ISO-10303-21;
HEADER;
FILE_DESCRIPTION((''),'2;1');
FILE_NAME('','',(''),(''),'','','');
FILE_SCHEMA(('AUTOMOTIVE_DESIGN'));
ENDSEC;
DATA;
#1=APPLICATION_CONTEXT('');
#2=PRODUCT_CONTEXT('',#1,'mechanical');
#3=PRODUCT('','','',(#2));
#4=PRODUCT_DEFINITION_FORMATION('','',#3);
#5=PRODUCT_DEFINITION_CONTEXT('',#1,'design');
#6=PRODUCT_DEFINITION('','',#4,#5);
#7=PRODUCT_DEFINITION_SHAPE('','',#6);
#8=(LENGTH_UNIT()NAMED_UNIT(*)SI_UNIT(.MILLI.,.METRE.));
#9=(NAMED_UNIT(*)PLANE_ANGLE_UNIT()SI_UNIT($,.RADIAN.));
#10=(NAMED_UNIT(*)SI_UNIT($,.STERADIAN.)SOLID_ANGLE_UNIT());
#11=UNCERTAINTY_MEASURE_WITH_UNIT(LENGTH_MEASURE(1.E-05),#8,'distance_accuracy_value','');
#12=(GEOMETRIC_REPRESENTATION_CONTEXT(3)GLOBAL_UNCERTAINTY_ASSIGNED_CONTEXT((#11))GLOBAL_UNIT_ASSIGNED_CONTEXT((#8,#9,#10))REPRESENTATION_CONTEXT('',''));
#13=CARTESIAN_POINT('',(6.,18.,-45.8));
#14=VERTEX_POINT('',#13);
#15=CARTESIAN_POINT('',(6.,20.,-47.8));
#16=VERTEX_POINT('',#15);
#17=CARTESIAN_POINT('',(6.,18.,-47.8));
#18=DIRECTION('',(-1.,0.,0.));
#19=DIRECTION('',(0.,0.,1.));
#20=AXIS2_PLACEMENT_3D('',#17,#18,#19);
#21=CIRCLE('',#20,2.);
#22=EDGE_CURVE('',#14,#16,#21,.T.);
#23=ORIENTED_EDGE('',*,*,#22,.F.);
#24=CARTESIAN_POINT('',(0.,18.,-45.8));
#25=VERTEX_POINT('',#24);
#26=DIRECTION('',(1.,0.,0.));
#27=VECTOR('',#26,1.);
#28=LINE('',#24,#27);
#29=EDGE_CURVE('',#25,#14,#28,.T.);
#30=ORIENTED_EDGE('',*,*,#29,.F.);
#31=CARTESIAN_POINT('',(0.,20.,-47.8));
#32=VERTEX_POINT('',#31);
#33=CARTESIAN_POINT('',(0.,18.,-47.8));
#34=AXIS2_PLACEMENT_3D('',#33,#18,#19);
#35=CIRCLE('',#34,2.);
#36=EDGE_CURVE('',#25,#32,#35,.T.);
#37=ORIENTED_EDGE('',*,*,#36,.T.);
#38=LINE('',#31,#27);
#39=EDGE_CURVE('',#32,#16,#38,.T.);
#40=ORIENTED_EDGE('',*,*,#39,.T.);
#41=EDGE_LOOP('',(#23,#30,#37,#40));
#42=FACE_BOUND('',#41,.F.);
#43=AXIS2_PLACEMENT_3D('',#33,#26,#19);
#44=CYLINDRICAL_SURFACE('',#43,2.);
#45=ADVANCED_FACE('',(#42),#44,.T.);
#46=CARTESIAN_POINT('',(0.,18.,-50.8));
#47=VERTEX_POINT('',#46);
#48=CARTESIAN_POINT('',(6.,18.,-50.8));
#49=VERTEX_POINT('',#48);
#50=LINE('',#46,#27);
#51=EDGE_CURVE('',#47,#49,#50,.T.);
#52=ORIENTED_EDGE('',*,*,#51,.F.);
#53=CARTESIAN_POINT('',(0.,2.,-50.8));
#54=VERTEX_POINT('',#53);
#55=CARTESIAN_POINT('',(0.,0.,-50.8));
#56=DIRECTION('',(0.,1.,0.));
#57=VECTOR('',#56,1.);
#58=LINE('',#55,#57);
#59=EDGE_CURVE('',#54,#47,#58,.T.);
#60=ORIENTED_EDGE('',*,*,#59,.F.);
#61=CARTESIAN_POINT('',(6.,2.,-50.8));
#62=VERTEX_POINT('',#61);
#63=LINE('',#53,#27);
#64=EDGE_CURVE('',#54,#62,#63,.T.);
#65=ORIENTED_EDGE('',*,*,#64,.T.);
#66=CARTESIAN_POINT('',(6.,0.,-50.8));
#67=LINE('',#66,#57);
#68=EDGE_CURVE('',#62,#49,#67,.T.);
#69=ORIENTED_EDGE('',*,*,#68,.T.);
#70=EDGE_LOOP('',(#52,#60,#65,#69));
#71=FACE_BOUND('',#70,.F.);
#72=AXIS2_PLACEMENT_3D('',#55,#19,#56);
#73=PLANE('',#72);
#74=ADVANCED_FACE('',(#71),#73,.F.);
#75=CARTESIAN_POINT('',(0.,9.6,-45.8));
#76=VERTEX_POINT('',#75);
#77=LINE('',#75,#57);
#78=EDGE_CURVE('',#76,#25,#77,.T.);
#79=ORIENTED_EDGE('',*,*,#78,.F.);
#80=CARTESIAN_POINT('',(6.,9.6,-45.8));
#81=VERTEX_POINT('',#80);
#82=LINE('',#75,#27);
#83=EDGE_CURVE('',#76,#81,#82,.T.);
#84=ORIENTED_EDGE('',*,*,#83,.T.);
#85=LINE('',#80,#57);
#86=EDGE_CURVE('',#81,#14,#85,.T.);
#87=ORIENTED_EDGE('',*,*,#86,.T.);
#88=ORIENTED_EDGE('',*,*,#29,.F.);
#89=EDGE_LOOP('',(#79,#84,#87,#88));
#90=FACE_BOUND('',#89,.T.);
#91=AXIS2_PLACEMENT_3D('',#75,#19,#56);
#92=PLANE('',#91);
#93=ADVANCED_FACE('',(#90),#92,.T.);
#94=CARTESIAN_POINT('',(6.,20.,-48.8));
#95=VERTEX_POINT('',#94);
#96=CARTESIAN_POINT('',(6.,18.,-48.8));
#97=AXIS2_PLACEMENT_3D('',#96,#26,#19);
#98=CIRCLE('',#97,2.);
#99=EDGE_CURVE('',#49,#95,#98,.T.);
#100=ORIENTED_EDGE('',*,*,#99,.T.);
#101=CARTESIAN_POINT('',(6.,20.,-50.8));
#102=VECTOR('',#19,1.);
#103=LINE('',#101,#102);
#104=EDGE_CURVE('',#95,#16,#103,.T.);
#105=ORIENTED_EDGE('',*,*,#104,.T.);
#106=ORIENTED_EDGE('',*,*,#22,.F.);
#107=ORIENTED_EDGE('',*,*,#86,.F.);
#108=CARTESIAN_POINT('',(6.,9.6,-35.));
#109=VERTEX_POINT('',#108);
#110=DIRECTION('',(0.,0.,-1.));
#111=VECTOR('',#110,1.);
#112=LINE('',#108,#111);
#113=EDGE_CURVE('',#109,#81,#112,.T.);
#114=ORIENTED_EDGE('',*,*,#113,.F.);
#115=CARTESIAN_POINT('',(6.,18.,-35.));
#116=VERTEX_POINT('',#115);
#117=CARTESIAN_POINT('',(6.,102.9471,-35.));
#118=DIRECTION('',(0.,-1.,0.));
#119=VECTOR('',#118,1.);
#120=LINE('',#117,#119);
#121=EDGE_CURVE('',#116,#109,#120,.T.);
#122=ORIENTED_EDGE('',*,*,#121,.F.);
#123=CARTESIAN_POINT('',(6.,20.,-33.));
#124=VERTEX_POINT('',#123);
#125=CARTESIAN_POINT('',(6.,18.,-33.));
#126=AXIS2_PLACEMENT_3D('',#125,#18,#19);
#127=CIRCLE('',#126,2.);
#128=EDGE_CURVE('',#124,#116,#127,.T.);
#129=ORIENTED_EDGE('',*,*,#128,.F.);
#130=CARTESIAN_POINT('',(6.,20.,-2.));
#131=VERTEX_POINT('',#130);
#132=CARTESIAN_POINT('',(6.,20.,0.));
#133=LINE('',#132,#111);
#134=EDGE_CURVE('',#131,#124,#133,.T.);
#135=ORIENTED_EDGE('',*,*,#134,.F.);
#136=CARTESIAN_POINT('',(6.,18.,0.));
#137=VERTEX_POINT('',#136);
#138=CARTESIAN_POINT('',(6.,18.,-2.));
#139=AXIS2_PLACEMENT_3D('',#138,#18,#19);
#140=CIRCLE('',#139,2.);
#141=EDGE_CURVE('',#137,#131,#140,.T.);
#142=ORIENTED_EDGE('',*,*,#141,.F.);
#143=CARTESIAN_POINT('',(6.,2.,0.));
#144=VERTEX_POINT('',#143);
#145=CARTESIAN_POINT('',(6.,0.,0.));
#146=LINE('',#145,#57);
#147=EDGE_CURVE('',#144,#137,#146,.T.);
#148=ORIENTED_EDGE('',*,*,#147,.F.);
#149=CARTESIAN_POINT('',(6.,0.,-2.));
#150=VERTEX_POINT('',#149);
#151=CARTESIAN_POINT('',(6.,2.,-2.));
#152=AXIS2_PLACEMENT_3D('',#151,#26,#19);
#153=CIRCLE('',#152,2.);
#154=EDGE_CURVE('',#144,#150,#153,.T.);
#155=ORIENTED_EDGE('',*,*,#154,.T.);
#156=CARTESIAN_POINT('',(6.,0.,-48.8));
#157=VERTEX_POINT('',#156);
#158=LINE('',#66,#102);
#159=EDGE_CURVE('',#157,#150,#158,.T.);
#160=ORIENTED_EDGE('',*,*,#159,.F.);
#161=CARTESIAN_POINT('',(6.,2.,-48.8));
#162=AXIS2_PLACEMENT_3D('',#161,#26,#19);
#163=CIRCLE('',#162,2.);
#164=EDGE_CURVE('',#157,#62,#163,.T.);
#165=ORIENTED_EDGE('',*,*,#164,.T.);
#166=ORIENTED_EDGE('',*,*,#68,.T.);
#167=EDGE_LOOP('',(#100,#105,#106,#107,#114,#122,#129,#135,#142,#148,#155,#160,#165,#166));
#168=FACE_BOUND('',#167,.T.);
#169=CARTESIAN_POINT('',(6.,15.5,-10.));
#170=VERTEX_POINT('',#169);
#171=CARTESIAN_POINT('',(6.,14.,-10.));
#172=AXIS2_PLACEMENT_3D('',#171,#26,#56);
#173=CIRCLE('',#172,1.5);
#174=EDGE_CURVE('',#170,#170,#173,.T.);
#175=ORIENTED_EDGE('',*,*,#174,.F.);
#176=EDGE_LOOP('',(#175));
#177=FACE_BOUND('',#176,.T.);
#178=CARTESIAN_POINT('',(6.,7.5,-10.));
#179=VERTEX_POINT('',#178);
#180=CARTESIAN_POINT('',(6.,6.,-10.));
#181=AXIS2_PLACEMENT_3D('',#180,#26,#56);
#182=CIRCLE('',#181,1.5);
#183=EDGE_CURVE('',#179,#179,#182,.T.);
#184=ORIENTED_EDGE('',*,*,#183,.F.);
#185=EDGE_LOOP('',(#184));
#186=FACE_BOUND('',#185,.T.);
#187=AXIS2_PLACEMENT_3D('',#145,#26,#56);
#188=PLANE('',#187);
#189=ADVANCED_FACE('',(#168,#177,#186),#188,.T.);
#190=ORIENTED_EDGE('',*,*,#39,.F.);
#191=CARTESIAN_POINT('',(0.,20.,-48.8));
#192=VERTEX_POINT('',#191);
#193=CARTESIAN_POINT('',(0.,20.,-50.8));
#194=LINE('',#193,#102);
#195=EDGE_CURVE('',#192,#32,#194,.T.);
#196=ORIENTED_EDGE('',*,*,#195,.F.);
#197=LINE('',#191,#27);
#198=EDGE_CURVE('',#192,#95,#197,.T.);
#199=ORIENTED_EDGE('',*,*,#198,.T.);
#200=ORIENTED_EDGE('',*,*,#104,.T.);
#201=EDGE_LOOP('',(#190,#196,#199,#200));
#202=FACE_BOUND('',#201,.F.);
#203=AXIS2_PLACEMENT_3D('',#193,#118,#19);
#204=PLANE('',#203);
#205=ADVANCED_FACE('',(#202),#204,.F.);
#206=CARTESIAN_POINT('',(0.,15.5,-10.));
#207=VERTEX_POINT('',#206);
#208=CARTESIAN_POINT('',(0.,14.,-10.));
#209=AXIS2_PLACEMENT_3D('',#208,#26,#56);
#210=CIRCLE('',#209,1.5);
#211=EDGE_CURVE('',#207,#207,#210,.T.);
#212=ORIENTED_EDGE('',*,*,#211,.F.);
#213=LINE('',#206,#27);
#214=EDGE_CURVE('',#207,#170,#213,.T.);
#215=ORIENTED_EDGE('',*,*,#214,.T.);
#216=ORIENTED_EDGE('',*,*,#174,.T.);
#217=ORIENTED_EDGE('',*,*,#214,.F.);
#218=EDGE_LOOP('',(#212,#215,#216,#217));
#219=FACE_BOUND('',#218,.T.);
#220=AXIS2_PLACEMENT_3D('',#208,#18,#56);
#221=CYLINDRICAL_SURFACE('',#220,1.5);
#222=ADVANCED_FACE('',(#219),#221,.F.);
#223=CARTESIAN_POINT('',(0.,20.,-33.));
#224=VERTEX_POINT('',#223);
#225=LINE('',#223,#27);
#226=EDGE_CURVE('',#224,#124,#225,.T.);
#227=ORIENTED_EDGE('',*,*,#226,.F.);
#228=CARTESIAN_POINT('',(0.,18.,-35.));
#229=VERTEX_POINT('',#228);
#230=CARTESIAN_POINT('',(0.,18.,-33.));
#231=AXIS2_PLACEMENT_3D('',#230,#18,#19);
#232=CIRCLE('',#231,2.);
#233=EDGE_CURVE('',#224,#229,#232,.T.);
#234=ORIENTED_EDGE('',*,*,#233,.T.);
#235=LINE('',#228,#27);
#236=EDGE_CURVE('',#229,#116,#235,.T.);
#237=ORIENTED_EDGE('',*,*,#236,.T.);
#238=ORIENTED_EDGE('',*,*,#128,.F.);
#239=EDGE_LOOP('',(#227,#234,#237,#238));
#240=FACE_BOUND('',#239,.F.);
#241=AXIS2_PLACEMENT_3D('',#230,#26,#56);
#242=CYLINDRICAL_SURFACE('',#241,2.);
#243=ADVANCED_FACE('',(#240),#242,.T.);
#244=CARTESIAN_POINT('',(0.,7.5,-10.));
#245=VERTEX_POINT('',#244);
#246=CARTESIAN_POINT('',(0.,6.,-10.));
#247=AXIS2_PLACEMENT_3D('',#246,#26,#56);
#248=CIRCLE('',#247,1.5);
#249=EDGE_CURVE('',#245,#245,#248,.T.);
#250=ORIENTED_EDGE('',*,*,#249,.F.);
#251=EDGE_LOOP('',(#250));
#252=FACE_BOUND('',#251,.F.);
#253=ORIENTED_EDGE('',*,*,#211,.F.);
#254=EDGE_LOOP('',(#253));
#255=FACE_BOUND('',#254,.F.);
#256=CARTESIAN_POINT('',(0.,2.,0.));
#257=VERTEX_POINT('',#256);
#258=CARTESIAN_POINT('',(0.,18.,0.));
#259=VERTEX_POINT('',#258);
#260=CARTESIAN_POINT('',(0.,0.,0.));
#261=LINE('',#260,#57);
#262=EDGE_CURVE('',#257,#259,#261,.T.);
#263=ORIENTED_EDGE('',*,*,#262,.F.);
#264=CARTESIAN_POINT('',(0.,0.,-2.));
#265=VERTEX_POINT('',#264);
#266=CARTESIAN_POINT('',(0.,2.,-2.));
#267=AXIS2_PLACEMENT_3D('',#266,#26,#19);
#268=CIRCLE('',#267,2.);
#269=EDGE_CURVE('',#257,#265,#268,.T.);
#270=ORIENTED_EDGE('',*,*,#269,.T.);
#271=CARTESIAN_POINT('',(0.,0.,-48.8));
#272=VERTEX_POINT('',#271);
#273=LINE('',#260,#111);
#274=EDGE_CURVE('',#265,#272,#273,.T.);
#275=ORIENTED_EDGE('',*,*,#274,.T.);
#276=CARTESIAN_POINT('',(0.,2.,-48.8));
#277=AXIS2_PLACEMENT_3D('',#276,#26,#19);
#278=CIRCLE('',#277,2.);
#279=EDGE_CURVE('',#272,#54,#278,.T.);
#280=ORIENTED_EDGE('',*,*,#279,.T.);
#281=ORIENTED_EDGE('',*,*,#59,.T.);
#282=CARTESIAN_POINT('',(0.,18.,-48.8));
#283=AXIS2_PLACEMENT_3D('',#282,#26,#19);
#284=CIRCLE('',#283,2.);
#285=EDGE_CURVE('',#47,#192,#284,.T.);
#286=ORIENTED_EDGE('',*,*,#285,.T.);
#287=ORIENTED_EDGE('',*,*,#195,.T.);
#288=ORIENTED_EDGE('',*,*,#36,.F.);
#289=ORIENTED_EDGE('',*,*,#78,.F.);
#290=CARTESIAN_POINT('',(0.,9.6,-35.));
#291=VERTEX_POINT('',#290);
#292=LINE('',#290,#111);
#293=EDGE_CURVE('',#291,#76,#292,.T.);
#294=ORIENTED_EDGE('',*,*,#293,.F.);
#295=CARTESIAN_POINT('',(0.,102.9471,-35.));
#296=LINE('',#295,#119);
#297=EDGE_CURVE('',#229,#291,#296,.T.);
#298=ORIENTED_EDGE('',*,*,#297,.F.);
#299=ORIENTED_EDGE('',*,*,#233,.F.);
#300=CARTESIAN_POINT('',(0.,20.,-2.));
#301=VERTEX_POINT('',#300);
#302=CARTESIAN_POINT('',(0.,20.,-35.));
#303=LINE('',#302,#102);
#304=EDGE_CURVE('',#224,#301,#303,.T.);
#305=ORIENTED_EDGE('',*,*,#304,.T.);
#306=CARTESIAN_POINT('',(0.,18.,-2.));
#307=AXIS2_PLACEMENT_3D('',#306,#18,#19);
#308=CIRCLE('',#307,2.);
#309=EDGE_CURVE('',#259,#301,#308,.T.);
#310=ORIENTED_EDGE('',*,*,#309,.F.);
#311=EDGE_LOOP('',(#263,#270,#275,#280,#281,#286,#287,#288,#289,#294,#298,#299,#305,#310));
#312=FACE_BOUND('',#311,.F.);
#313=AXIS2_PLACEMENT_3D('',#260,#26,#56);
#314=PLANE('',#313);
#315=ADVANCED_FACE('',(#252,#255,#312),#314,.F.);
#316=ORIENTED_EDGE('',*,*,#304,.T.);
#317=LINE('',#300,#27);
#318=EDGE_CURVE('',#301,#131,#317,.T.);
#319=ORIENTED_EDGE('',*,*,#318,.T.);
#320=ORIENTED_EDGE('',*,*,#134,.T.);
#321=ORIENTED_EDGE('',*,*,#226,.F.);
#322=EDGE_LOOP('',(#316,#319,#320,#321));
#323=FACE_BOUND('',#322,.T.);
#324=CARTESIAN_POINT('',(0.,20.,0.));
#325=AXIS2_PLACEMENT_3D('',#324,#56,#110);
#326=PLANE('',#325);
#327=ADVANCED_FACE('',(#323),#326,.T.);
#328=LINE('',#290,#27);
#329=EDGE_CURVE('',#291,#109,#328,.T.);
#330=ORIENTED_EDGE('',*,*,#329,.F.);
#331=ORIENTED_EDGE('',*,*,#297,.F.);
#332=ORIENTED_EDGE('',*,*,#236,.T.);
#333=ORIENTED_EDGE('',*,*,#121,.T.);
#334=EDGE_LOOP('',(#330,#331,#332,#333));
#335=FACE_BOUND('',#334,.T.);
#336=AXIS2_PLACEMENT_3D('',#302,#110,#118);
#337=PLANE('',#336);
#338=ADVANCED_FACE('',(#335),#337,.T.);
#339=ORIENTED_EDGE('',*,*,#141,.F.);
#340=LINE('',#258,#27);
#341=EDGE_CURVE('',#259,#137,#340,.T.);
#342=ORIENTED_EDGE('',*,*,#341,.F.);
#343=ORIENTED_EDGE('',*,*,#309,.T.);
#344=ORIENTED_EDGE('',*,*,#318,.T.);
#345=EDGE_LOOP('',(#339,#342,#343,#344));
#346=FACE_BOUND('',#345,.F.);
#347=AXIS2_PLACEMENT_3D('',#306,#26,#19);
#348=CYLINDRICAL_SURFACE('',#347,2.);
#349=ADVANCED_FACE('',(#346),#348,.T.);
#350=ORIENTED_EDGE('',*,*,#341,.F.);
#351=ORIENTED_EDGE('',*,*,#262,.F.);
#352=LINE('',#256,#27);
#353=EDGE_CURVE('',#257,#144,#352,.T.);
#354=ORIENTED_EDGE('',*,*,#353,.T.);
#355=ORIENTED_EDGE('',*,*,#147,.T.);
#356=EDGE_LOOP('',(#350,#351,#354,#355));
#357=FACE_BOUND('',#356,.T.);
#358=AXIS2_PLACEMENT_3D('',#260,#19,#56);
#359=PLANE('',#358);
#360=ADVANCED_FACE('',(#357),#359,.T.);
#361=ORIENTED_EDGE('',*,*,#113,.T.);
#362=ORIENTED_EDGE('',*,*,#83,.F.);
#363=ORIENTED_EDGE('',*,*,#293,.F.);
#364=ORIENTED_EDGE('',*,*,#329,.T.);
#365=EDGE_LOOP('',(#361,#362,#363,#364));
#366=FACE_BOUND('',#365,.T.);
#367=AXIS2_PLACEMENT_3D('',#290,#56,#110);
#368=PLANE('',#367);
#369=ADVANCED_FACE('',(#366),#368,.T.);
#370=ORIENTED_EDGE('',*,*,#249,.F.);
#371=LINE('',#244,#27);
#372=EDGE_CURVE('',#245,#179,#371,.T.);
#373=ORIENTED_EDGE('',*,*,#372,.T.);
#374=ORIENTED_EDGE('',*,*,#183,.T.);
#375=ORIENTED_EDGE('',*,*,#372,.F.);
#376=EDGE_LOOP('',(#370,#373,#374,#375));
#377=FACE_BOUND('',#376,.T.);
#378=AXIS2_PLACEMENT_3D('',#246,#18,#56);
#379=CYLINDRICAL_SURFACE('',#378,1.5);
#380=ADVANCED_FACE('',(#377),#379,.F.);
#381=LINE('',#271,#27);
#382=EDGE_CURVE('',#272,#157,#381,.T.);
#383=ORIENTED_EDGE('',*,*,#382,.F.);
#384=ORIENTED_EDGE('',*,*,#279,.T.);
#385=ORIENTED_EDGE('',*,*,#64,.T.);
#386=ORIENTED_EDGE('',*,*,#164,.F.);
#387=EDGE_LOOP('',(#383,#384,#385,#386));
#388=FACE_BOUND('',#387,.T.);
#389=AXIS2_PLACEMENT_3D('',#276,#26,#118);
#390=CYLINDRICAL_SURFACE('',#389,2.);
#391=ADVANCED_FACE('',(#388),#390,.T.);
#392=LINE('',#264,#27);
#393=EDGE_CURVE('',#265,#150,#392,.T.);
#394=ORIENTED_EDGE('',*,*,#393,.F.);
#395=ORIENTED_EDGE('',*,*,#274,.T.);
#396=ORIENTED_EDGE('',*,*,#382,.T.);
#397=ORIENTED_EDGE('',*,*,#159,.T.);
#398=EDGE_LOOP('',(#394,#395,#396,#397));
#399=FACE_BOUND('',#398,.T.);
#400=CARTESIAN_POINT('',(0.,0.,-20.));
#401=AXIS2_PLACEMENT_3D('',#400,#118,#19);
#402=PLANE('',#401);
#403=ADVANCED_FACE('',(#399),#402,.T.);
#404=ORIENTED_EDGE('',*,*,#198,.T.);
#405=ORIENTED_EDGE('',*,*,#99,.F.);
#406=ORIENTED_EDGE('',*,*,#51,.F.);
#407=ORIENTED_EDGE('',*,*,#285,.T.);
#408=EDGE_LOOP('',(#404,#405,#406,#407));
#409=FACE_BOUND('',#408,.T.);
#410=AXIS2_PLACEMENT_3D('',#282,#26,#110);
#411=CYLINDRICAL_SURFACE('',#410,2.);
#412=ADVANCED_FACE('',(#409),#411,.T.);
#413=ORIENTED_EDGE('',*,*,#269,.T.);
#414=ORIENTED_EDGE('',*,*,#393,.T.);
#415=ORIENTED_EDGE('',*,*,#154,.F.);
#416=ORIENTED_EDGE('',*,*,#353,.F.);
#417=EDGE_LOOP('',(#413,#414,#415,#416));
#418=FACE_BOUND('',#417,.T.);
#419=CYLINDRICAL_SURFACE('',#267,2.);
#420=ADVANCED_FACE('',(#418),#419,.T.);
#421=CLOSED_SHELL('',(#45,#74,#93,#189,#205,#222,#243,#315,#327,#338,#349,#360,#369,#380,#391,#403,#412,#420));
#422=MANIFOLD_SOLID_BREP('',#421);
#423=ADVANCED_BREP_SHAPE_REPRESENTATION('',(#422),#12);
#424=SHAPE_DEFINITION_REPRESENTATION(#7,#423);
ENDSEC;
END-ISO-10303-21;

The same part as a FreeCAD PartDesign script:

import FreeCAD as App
import Part
import Sketcher

V = App.Vector


def edges_at(feature, points):
    """Names of the edges that pass closest to the given points."""
    edges = feature.Shape.Edges
    near = lambda p: min(range(len(edges)), key=lambda i: edges[i].distToShape(Part.Vertex(*p))[0])
    return sorted({f"Edge{near(p) + 1}" for p in points})


def add_polygon(sketch, points):
    """Adds a closed chain of lines whose ends are joined by coincident constraints."""
    first, n = sketch.GeometryCount, len(points)
    for a, b in zip(points, points[1:] + points[:1]):
        sketch.addGeometry(Part.LineSegment(App.Vector(*a, 0), App.Vector(*b, 0)), False)
    for i in range(n):
        sketch.addConstraint(Sketcher.Constraint("Coincident", first + i, 2, first + (i + 1) % n, 1))

doc = App.newDocument("Part")
body = doc.addObject("PartDesign::Body", "Body")

sketch1 = doc.addObject("Sketcher::SketchObject", "Sketch")
body.addObject(sketch1)
sketch1.AttachmentSupport = (doc.YZ_Plane, [""])
sketch1.MapMode = "FlatFace"
add_polygon(sketch1, [(20, 0), (0, 0), (0, -50.8), (20, -50.8), (20, -45.8), (9.6, -45.8), (9.6, -35), (20, -35)])
sketch1.addGeometry(Part.Circle(V(6, -10, 0), V(0, 0, 1), 1.5), False)
sketch1.addGeometry(Part.Circle(V(14, -10, 0), V(0, 0, 1), 1.5), False)
sketch1.addConstraint(Sketcher.Constraint("Horizontal", 0))
sketch1.addConstraint(Sketcher.Constraint("Vertical", 1))
sketch1.addConstraint(Sketcher.Constraint("Horizontal", 2))
sketch1.addConstraint(Sketcher.Constraint("Vertical", 3))
sketch1.addConstraint(Sketcher.Constraint("Horizontal", 4))
sketch1.addConstraint(Sketcher.Constraint("Vertical", 5))
sketch1.addConstraint(Sketcher.Constraint("Horizontal", 6))
sketch1.addConstraint(Sketcher.Constraint("Vertical", 7))
sketch1.addConstraint(Sketcher.Constraint("Coincident", 0, 2, -1, 1))
sketch1.addConstraint(Sketcher.Constraint("Equal", 8, 9))
sketch1.addConstraint(Sketcher.Constraint("Horizontal", 8, 3, 9, 3))
sketch1.addConstraint(Sketcher.Constraint("Vertical", 3, 2, 6, 2))
sketch1.addConstraint(Sketcher.Constraint("Diameter", 8, 3.0))
sketch1.addConstraint(Sketcher.Constraint("DistanceX", 0, 2, 0, 1, 20.0))
sketch1.addConstraint(Sketcher.Constraint("DistanceY", 3, 1, 3, 2, 5.0))
sketch1.addConstraint(Sketcher.Constraint("DistanceY", 5, 1, 5, 2, 10.8))
sketch1.addConstraint(Sketcher.Constraint("DistanceX", -1, 1, 8, 3, 6.0))
sketch1.addConstraint(Sketcher.Constraint("DistanceY", 8, 3, -1, 1, 10.0))
sketch1.addConstraint(Sketcher.Constraint("DistanceX", 8, 3, 9, 3, 8.0))
sketch1.addConstraint(Sketcher.Constraint("DistanceX", -1, 1, 4, 2, 9.6))
sketch1.addConstraint(Sketcher.Constraint("DistanceY", 7, 1, 7, 2, 35.0))
pad1 = doc.addObject("PartDesign::Pad", "Pad")
body.addObject(pad1)
pad1.Profile = sketch1
pad1.Length = 6
doc.recompute()

fillet = doc.addObject("PartDesign::Fillet", "Fillet")
body.addObject(fillet)
fillet.Base = (pad1, edges_at(pad1, [
    (3, 0, 0),
    (3, 20, 0),
    (3, 20, -35),
    (3, 20, -45.8),
    (3, 20, -50.8),
    (3, 0, -50.8),
]))
fillet.Radius = 2

doc.recompute()
